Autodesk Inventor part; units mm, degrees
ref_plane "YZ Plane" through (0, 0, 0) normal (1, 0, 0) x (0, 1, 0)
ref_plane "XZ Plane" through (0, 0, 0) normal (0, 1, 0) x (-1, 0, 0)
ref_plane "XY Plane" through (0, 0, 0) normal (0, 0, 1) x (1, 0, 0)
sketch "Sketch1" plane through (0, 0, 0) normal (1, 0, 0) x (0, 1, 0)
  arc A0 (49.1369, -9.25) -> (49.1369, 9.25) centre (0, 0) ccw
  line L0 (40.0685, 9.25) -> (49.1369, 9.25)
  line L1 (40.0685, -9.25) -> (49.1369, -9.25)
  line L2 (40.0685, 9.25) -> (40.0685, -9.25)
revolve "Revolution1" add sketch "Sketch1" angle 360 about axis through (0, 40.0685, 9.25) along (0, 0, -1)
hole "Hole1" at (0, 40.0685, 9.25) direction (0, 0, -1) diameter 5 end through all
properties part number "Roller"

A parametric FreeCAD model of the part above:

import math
import FreeCAD as App
import Part
import Sketcher

doc = App.newDocument("Part")
body = doc.addObject("PartDesign::Body", "Body")

sketch1 = doc.addObject("Sketcher::SketchObject", "Sketch")
body.addObject(sketch1)
sketch1.AttachmentSupport = (doc.YZ_Plane, [""])
sketch1.MapMode = "FlatFace"
sketch1.addGeometry([
    Part.LineSegment(App.Vector(40, -9, 0), App.Vector(49, -9, 0)),
    Part.ArcOfCircle(Part.Circle(App.Vector(0, 0, 0), App.Vector(0, 0, 1), 50), math.radians(-11), math.radians(11)),
    Part.LineSegment(App.Vector(49, 9, 0), App.Vector(40, 9, 0)),
    Part.LineSegment(App.Vector(40, 9, 0), App.Vector(40, -9, 0)),
], False)
sketch1.addGeometry(Part.LineSegment(App.Vector(40, 9, 0), App.Vector(40, -9, 0)), True)
sketch1.addConstraint([
    Sketcher.Constraint("Coincident", 0, 2, 1, 1),
    Sketcher.Constraint("Coincident", 1, 2, 2, 1),
    Sketcher.Constraint("Coincident", 2, 2, 3, 1),
    Sketcher.Constraint("Coincident", 3, 2, 0, 1),
    Sketcher.Constraint("Horizontal", 0),
    Sketcher.Constraint("Horizontal", 2),
    Sketcher.Constraint("Vertical", 3),
    Sketcher.Constraint("Vertical", 4),
    Sketcher.Constraint("Coincident", 1, 3, -1, 1),
    Sketcher.Constraint("Coincident", 4, 1, 2, 2),
    Sketcher.Constraint("Horizontal", 0, 2, 4, 2),
    Sketcher.Constraint("Vertical", 0, 2, 1, 2),
    Sketcher.Constraint("Radius", 1, 50.0),
    Sketcher.Constraint("DistanceY", 3, 2, 3, 1, 18.5),
    Sketcher.Constraint("DistanceX", 0, 1, 0, 2, 9.0684),
])
revolution = doc.addObject("PartDesign::Revolution", "Revolution")
body.addObject(revolution)
revolution.Profile = sketch1
revolution.ReferenceAxis = (sketch1, ["Axis0"])
revolution.Angle = 360

sketch2 = doc.addObject("Sketcher::SketchObject", "Sketch001")
body.addObject(sketch2)
sketch2.AttachmentSupport = (doc.XY_Plane, [""])
sketch2.MapMode = "FlatFace"
sketch2.AttachmentOffset = App.Placement(App.Vector(0, 0, 9.25), App.Rotation())
sketch2.addGeometry(Part.Circle(App.Vector(0, 40.1, 0), App.Vector(0, 0, 1), 2.5), False)
sketch2.addConstraint([
    Sketcher.Constraint("PointOnObject", 0, 3, -2),
    Sketcher.Constraint("Diameter", 0, 5.0),
    Sketcher.Constraint("DistanceY", -1, 1, 0, 3, 40.0685),
])
doc.recompute()
hole = doc.addObject("PartDesign::Hole", "Hole")
body.addObject(hole)
hole.Profile = sketch2
hole.ThreadType = "None"
hole.Diameter = 5
hole.DepthType = "ThroughAll"

doc.recompute()
